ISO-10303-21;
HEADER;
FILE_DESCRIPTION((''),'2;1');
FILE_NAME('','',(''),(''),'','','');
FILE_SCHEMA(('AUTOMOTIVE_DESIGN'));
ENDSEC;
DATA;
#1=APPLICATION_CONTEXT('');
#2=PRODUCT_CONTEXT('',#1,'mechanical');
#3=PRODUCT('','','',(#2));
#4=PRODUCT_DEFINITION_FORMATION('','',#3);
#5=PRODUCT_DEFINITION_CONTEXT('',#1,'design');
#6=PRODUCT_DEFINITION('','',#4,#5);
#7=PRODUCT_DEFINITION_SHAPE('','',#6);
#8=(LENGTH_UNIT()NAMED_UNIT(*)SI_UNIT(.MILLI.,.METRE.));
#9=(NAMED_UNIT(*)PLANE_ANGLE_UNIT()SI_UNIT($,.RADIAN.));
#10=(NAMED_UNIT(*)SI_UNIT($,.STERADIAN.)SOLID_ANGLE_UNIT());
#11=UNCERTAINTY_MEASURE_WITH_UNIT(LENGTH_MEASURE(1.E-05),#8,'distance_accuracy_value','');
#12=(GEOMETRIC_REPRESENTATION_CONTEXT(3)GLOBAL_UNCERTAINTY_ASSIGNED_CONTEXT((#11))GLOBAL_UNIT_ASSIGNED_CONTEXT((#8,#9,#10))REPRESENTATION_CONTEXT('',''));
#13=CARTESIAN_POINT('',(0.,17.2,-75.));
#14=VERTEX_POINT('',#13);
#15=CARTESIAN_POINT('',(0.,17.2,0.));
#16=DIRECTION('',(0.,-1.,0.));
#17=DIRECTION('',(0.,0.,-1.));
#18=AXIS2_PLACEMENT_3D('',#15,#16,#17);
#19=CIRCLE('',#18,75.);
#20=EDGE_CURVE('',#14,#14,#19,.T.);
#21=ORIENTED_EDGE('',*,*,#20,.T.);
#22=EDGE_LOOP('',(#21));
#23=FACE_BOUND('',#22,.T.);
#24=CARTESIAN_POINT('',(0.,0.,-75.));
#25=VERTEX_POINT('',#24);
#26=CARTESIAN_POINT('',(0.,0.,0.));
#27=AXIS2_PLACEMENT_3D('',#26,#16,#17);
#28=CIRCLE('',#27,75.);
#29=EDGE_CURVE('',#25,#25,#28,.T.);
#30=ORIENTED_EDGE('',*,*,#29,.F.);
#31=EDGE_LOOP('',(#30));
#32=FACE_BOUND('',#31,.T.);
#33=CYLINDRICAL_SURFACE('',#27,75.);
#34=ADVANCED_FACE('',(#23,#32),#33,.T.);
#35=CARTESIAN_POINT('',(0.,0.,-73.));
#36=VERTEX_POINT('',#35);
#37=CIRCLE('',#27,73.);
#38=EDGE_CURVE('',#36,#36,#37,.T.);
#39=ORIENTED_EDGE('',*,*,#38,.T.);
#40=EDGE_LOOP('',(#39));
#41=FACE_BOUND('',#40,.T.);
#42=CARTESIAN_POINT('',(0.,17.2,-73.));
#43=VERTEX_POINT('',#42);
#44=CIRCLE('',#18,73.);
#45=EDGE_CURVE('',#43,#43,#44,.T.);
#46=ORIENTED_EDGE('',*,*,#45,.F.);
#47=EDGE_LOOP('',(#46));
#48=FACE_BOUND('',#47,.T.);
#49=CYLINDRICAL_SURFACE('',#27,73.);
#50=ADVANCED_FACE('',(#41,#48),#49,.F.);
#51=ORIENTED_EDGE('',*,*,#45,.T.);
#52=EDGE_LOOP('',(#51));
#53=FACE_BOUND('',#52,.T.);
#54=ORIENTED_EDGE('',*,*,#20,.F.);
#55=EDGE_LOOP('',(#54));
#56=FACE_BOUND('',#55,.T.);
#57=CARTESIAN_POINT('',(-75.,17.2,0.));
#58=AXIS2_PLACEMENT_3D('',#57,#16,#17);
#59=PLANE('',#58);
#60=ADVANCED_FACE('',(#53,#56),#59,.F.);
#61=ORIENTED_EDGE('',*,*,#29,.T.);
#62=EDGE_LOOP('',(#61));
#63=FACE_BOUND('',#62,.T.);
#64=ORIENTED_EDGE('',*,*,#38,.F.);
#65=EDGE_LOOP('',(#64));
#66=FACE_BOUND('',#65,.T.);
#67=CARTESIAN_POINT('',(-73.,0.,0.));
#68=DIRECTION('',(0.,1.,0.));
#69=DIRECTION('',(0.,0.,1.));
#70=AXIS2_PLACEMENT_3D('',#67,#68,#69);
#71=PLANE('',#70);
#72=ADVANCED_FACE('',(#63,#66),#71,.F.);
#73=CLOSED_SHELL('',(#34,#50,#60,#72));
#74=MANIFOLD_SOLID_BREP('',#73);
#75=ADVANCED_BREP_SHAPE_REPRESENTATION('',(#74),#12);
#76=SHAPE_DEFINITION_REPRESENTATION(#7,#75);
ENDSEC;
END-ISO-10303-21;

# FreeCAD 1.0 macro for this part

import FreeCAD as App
import Part
import Sketcher

V = App.Vector

doc = App.newDocument("Part")
params = doc.addObject("Spreadsheet::Sheet", "Params")
for row, (alias, value) in enumerate([
    ("sketch1_width", "2 mm"),
    ("sketch1_height", "17.2 mm"),
    ("revolution_angle", "360 deg"),
], start=1):
    params.set(f"A{row}", alias)
    params.set(f"B{row}", "=" + value)
    params.setAlias(f"B{row}", alias)

body = doc.addObject("PartDesign::Body", "Body")

# Sketch on XY plane
sketch1 = body.newObject("Sketcher::SketchObject", "Sketch")
sketch1.AttachmentSupport = (doc.getObject("XY_Plane"), [""])
sketch1.MapMode = "FlatFace"
sketch1.addGeometry([
    Part.LineSegment(V(-75, 17.2, 0), V(-75, 0, 0)),
    Part.LineSegment(V(-75, 0, 0), V(-73, 0, 0)),
    Part.LineSegment(V(-73, 0, 0), V(-73, 17.2, 0)),
    Part.LineSegment(V(-73, 17.2, 0), V(-75, 17.2, 0)),
], False)
sketch1.addConstraint([
    Sketcher.Constraint("Coincident", 0, 2, 1, 1),
    Sketcher.Constraint("Coincident", 1, 2, 2, 1),
    Sketcher.Constraint("Coincident", 2, 2, 3, 1),
    Sketcher.Constraint("Coincident", 3, 2, 0, 1),
    Sketcher.Constraint("Vertical", 0),
    Sketcher.Constraint("Horizontal", 1),
    Sketcher.Constraint("Vertical", 2),
    Sketcher.Constraint("Horizontal", 3),
    Sketcher.Constraint("PointOnObject", 0, 2, -1),
    Sketcher.Constraint("DistanceX", 1, 1, 1, 2, 2.0),
    Sketcher.Constraint("DistanceY", 0, 2, 0, 1, 17.2),
    Sketcher.Constraint("DistanceX", 0, 2, -1, 1, 75.0),
])
sketch1.setExpression("Constraints[9]", "Params.sketch1_width")
sketch1.setExpression("Constraints[10]", "Params.sketch1_height")
revolution = body.newObject("PartDesign::Revolution", "Revolution")
revolution.Profile = sketch1
revolution.ReferenceAxis = (sketch1, ["V_Axis"])
revolution.setExpression("Angle", "Params.revolution_angle")

doc.recompute()
